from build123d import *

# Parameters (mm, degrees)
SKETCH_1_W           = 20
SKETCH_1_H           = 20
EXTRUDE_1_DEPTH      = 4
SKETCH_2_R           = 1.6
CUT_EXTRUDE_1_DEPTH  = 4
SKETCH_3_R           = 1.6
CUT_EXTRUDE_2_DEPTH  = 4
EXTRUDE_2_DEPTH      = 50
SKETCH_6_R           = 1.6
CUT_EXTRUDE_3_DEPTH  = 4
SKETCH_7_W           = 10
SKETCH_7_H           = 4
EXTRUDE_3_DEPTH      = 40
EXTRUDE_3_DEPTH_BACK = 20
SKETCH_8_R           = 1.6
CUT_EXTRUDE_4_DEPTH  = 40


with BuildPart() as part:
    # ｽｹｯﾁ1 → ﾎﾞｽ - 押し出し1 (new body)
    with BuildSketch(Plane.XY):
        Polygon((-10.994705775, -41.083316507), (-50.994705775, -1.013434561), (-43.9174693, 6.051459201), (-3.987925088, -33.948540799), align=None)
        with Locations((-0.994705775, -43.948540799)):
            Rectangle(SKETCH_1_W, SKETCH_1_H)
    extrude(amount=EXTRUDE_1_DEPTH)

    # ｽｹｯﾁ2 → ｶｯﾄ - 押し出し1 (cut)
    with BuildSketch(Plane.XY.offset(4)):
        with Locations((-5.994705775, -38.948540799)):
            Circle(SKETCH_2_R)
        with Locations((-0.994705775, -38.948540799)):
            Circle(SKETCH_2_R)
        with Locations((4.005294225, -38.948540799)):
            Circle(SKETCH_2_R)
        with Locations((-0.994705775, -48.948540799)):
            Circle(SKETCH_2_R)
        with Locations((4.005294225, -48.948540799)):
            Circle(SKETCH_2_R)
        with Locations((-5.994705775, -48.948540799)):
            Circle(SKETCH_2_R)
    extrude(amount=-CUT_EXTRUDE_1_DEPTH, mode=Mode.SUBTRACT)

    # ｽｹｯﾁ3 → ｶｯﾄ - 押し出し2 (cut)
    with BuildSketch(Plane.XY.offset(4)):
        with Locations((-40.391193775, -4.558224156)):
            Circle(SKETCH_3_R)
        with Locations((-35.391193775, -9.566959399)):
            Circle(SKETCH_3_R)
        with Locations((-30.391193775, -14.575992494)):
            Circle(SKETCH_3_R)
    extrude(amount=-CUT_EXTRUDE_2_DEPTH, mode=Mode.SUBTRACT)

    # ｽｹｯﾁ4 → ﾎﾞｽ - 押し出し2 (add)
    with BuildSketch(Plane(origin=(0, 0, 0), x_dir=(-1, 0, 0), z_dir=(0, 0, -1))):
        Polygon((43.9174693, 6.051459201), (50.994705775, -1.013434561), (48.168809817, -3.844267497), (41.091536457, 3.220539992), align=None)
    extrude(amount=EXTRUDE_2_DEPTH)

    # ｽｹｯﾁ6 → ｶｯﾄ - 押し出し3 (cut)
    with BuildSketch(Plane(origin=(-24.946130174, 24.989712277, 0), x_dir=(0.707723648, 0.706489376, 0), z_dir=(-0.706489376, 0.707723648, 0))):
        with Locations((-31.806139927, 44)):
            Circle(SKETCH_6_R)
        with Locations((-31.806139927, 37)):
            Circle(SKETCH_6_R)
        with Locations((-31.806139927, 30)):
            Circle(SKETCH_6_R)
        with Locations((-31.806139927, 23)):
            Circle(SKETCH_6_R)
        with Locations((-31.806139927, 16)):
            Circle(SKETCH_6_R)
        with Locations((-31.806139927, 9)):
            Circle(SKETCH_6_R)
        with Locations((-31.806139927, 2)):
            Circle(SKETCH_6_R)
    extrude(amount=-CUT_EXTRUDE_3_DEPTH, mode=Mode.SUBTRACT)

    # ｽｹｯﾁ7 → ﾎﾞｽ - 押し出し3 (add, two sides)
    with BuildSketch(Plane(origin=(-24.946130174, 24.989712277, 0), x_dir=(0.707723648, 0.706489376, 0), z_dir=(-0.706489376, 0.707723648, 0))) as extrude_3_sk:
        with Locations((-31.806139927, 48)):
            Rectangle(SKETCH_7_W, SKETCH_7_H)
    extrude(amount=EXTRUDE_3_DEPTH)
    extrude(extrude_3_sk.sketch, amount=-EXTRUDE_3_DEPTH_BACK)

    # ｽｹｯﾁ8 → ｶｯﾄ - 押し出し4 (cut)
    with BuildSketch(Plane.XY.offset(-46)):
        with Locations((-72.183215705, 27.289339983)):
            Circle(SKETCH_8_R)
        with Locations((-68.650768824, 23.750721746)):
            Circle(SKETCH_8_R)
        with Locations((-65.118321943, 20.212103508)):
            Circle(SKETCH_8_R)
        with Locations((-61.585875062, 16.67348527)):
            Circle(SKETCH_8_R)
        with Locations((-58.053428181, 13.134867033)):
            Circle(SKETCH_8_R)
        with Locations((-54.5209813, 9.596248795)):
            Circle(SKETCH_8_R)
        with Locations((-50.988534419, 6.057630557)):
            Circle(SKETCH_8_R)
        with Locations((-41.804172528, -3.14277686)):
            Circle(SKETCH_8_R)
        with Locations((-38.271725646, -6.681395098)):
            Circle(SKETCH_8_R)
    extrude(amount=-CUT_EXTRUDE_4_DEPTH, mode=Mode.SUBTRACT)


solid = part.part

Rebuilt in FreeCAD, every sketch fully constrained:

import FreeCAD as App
import Part
import Sketcher
from FreeCAD import Vector
Q = App.Units.Quantity

doc = App.newDocument("Part")
params = doc.addObject("Spreadsheet::Sheet", "Params")
for row, (alias, value) in enumerate([
    ("sketch1_width", "20 mm"),
    ("sketch1_length", "10 mm"),
    ("pad1_length", "4 mm"),
    ("sketch2_diameter", "3.2 mm"),
    ("pocket1_length", "4 mm"),
    ("sketch3_diameter", "3.2 mm"),
    ("pocket2_length", "4 mm"),
    ("sketch4_length", "10 mm"),
    ("sketch4_length2", "4 mm"),
    ("pad2_length", "50 mm"),
    ("sketch5_diameter", "3.2 mm"),
    ("pocket3_length", "4 mm"),
    ("sketch6_width", "10 mm"),
    ("sketch6_height", "4 mm"),
    ("pad3_length", "40 mm"),
    ("pad3_length2", "20 mm"),
    ("sketch7_diameter", "3.2 mm"),
    ("pocket4_length", "40 mm"),
], start=1):
    params.set(f"A{row}", alias)
    params.set(f"B{row}", "=" + value)
    params.setAlias(f"B{row}", alias)

body = doc.addObject("PartDesign::Body", "Body")

# Sketch on XY plane
sketch1 = body.newObject("Sketcher::SketchObject", "Sketch")
sketch1.AttachmentSupport = (doc.getObject("XY_Plane"), [""])
sketch1.MapMode = "FlatFace"
sketch1.addGeometry(Part.LineSegment(Vector(-4, -34, 0), Vector(-44, 6, 0)), False)
sketch1.addGeometry(Part.LineSegment(Vector(-44, 6, 0), Vector(-51, -1, 0)), False)
sketch1.addGeometry(Part.LineSegment(Vector(-51, -1, 0), Vector(-11, -41, 0)), False)
sketch1.addGeometry(Part.LineSegment(Vector(-11, -41, 0), Vector(-11, -54, 0)), False)
sketch1.addGeometry(Part.LineSegment(Vector(-11, -54, 0), Vector(9, -54, 0)), False)
sketch1.addGeometry(Part.LineSegment(Vector(9, -54, 0), Vector(9, -34, 0)), False)
sketch1.addGeometry(Part.LineSegment(Vector(9, -34, 0), Vector(-4, -34, 0)), False)
sketch1.addConstraint(Sketcher.Constraint("Coincident", 0, 2, 1, 1))
sketch1.addConstraint(Sketcher.Constraint("Coincident", 1, 2, 2, 1))
sketch1.addConstraint(Sketcher.Constraint("Coincident", 2, 2, 3, 1))
sketch1.addConstraint(Sketcher.Constraint("Coincident", 3, 2, 4, 1))
sketch1.addConstraint(Sketcher.Constraint("Coincident", 4, 2, 5, 1))
sketch1.addConstraint(Sketcher.Constraint("Coincident", 5, 2, 6, 1))
sketch1.addConstraint(Sketcher.Constraint("Coincident", 6, 2, 0, 1))
sketch1.addConstraint(Sketcher.Constraint("Vertical", 3))
sketch1.addConstraint(Sketcher.Constraint("Horizontal", 4))
sketch1.addConstraint(Sketcher.Constraint("Vertical", 5))
sketch1.addConstraint(Sketcher.Constraint("Horizontal", 6))
sketch1.addConstraint(Sketcher.Constraint("Perpendicular", 1, 2))
sketch1.addConstraint(Sketcher.Constraint("Equal", 4, 5))
sketch1.addConstraint(Sketcher.Constraint("DistanceX", 4, 1, 4, 2, 20.0))
sketch1.addConstraint(Sketcher.Constraint("Distance", 1, 10.0))
sketch1.addConstraint(Sketcher.Constraint("DistanceX", 1, 2, 2, 2, 40.0))
sketch1.addConstraint(Sketcher.Constraint("DistanceY", 3, 2, 0, 2, 60.0))
sketch1.addConstraint(Sketcher.Constraint("Angle", 1, Q("-135.050006 deg")))
sketch1.addConstraint(Sketcher.Constraint("DistanceX", 6, 2, 6, 1, 12.993219))
sketch1.addConstraint(Sketcher.Constraint("DistanceX", 0, 2, -1, 1, 43.917469))
sketch1.addConstraint(Sketcher.Constraint("DistanceY", -1, 1, 0, 2, 6.051459))
sketch1.setExpression("Constraints[13]", "Params.sketch1_width")
sketch1.setExpression("Constraints[14]", "Params.sketch1_length")
pad1 = body.newObject("PartDesign::Pad", "Pad")
pad1.Profile = sketch1
pad1.setExpression("Length", "Params.pad1_length")

# Sketch on XY plane
sketch2 = body.newObject("Sketcher::SketchObject", "Sketch001")
sketch2.AttachmentSupport = (doc.getObject("XY_Plane"), [""])
sketch2.MapMode = "FlatFace"
sketch2.AttachmentOffset = App.Placement(Vector(0, 0, 4), App.Rotation())
sketch2.addGeometry(Part.Circle(Vector(-6, -38.9, 0), Vector(0, 0, 1), 1.6), False)
sketch2.addGeometry(Part.Circle(Vector(-1, -38.9, 0), Vector(0, 0, 1), 1.6), False)
sketch2.addGeometry(Part.Circle(Vector(4, -38.9, 0), Vector(0, 0, 1), 1.6), False)
sketch2.addGeometry(Part.Circle(Vector(-1, -48.9, 0), Vector(0, 0, 1), 1.6), False)
sketch2.addGeometry(Part.Circle(Vector(4, -48.9, 0), Vector(0, 0, 1), 1.6), False)
sketch2.addGeometry(Part.Circle(Vector(-6, -48.9, 0), Vector(0, 0, 1), 1.6), False)
sketch2.addConstraint(Sketcher.Constraint("Equal", 0, 1))
sketch2.addConstraint(Sketcher.Constraint("Equal", 1, 2))
sketch2.addConstraint(Sketcher.Constraint("Equal", 2, 3))
sketch2.addConstraint(Sketcher.Constraint("Equal", 3, 4))
sketch2.addConstraint(Sketcher.Constraint("Equal", 4, 5))
sketch2.addConstraint(Sketcher.Constraint("Horizontal", 0, 3, 1, 3))
sketch2.addConstraint(Sketcher.Constraint("Horizontal", 1, 3, 2, 3))
sketch2.addConstraint(Sketcher.Constraint("Horizontal", 3, 3, 4, 3))
sketch2.addConstraint(Sketcher.Constraint("Horizontal", 4, 3, 5, 3))
sketch2.addConstraint(Sketcher.Constraint("Vertical", 1, 3, 3, 3))
sketch2.addConstraint(Sketcher.Constraint("Vertical", 2, 3, 4, 3))
sketch2.addConstraint(Sketcher.Constraint("Vertical", 0, 3, 5, 3))
sketch2.addConstraint(Sketcher.Constraint("Diameter", 0, 3.2))
sketch2.addConstraint(Sketcher.Constraint("DistanceX", 0, 3, 1, 3, 5.0))
sketch2.addConstraint(Sketcher.Constraint("DistanceX", 1, 3, 2, 3, 5.0))
sketch2.addConstraint(Sketcher.Constraint("DistanceY", 3, 3, 1, 3, 10.0))
sketch2.addConstraint(Sketcher.Constraint("DistanceY", 0, 3, -1, 1, 38.948541))
sketch2.addConstraint(Sketcher.Constraint("DistanceX", 0, 3, -1, 1, 5.994706))
sketch2.setExpression("Constraints[12]", "Params.sketch2_diameter")
pocket1 = body.newObject("PartDesign::Pocket", "Pocket")
pocket1.Profile = sketch2
pocket1.setExpression("Length", "Params.pocket1_length")

# Sketch on XY plane
sketch3 = body.newObject("Sketcher::SketchObject", "Sketch002")
sketch3.AttachmentSupport = (doc.getObject("XY_Plane"), [""])
sketch3.MapMode = "FlatFace"
sketch3.AttachmentOffset = App.Placement(Vector(0, 0, 4), App.Rotation())
sketch3.addGeometry(Part.Circle(Vector(-40.4, -4.6, 0), Vector(0, 0, 1), 1.6), False)
sketch3.addGeometry(Part.Circle(Vector(-35.4, -9.6, 0), Vector(0, 0, 1), 1.6), False)
sketch3.addGeometry(Part.Circle(Vector(-30.4, -14.6, 0), Vector(0, 0, 1), 1.6), False)
sketch3.addConstraint(Sketcher.Constraint("Equal", 0, 1))
sketch3.addConstraint(Sketcher.Constraint("Equal", 1, 2))
sketch3.addConstraint(Sketcher.Constraint("Diameter", 0, 3.2))
sketch3.addConstraint(Sketcher.Constraint("DistanceX", 0, 3, 1, 3, 5.0))
sketch3.addConstraint(Sketcher.Constraint("DistanceX", 1, 3, 2, 3, 5.0))
sketch3.addConstraint(Sketcher.Constraint("DistanceY", 1, 3, -1, 1, 9.566959))
sketch3.addConstraint(Sketcher.Constraint("DistanceY", 2, 3, 0, 3, 10.017768))
sketch3.addConstraint(Sketcher.Constraint("DistanceX", 0, 3, -1, 1, 40.391194))
sketch3.addConstraint(Sketcher.Constraint("DistanceY", 0, 3, -1, 1, 4.558224))
sketch3.setExpression("Constraints[2]", "Params.sketch3_diameter")
pocket2 = body.newObject("PartDesign::Pocket", "Pocket001")
pocket2.Profile = sketch3
pocket2.setExpression("Length", "Params.pocket2_length")

# Sketch on XY plane
sketch4 = body.newObject("Sketcher::SketchObject", "Sketch003")
sketch4.AttachmentSupport = (doc.getObject("XY_Plane"), [""])
sketch4.MapMode = "FlatFace"
sketch4.addGeometry(Part.LineSegment(Vector(-51, -1, 0), Vector(-43.9, 6.1, 0)), False)
sketch4.addGeometry(Part.LineSegment(Vector(-43.9, 6.1, 0), Vector(-41.1, 3.2, 0)), False)
sketch4.addGeometry(Part.LineSegment(Vector(-41.1, 3.2, 0), Vector(-48.2, -3.8, 0)), False)
sketch4.addGeometry(Part.LineSegment(Vector(-48.2, -3.8, 0), Vector(-51, -1, 0)), False)
sketch4.addConstraint(Sketcher.Constraint("Coincident", 0, 2, 1, 1))
sketch4.addConstraint(Sketcher.Constraint("Coincident", 1, 2, 2, 1))
sketch4.addConstraint(Sketcher.Constraint("Coincident", 2, 2, 3, 1))
sketch4.addConstraint(Sketcher.Constraint("Coincident", 3, 2, 0, 1))
sketch4.addConstraint(Sketcher.Constraint("Perpendicular", 1, 2))
sketch4.addConstraint(Sketcher.Constraint("Perpendicular", 0, 3))
sketch4.addConstraint(Sketcher.Constraint("Distance", 0, 10.0))
sketch4.addConstraint(Sketcher.Constraint("Distance", 1, 4.0))
sketch4.addConstraint(Sketcher.Constraint("Angle", 0, Q("44.949994 deg")))
sketch4.addConstraint(Sketcher.Constraint("DistanceX", 0, 2, -1, 1, 43.917469))
sketch4.addConstraint(Sketcher.Constraint("DistanceY", -1, 1, 0, 2, 6.051459))
sketch4.addConstraint(Sketcher.Constraint("DistanceY", -1, 1, 1, 2, 3.22054))
sketch4.setExpression("Constraints[6]", "Params.sketch4_length")
sketch4.setExpression("Constraints[7]", "Params.sketch4_length2")
pad2 = body.newObject("PartDesign::Pad", "Pad001")
pad2.Profile = sketch4
pad2.setExpression("Length", "Params.pad2_length")
pad2.Reversed = True

# Sketch on an angled plane
sketch5 = body.newObject("Sketcher::SketchObject", "Sketch004")
sketch5.Placement = App.Placement(Vector(-24.94613, 24.989712, 0), App.Rotation(Vector(0.707723648, 0.706489376, 0), Vector(0, 0, -1), Vector(-0.706489376, 0.707723648, 0), "ZXY"))
sketch5.addGeometry(Part.Circle(Vector(-31.8, 44, 0), Vector(0, 0, 1), 1.6), False)
sketch5.addGeometry(Part.Circle(Vector(-31.8, 37, 0), Vector(0, 0, 1), 1.6), False)
sketch5.addGeometry(Part.Circle(Vector(-31.8, 30, 0), Vector(0, 0, 1), 1.6), False)
sketch5.addGeometry(Part.Circle(Vector(-31.8, 23, 0), Vector(0, 0, 1), 1.6), False)
sketch5.addGeometry(Part.Circle(Vector(-31.8, 16, 0), Vector(0, 0, 1), 1.6), False)
sketch5.addGeometry(Part.Circle(Vector(-31.8, 9, 0), Vector(0, 0, 1), 1.6), False)
sketch5.addGeometry(Part.Circle(Vector(-31.8, 2, 0), Vector(0, 0, 1), 1.6), False)
sketch5.addConstraint(Sketcher.Constraint("Equal", 0, 1))
sketch5.addConstraint(Sketcher.Constraint("Equal", 1, 2))
sketch5.addConstraint(Sketcher.Constraint("Equal", 2, 3))
sketch5.addConstraint(Sketcher.Constraint("Equal", 3, 4))
sketch5.addConstraint(Sketcher.Constraint("Equal", 4, 5))
sketch5.addConstraint(Sketcher.Constraint("Equal", 5, 6))
sketch5.addConstraint(Sketcher.Constraint("Vertical", 0, 3, 1, 3))
sketch5.addConstraint(Sketcher.Constraint("Vertical", 1, 3, 2, 3))
sketch5.addConstraint(Sketcher.Constraint("Vertical", 2, 3, 3, 3))
sketch5.addConstraint(Sketcher.Constraint("Vertical", 3, 3, 4, 3))
sketch5.addConstraint(Sketcher.Constraint("Vertical", 4, 3, 5, 3))
sketch5.addConstraint(Sketcher.Constraint("Vertical", 5, 3, 6, 3))
sketch5.addConstraint(Sketcher.Constraint("Diameter", 0, 3.2))
sketch5.addConstraint(Sketcher.Constraint("DistanceY", -1, 1, 0, 3, 44.0))
sketch5.addConstraint(Sketcher.Constraint("DistanceY", -1, 1, 1, 3, 37.0))
sketch5.addConstraint(Sketcher.Constraint("DistanceY", -1, 1, 2, 3, 30.0))
sketch5.addConstraint(Sketcher.Constraint("DistanceY", -1, 1, 3, 3, 23.0))
sketch5.addConstraint(Sketcher.Constraint("DistanceY", -1, 1, 4, 3, 16.0))
sketch5.addConstraint(Sketcher.Constraint("DistanceY", -1, 1, 5, 3, 9.0))
sketch5.addConstraint(Sketcher.Constraint("DistanceY", -1, 1, 6, 3, 2.0))
sketch5.addConstraint(Sketcher.Constraint("DistanceX", 0, 3, -1, 1, 31.80614))
sketch5.setExpression("Constraints[12]", "Params.sketch5_diameter")
pocket3 = body.newObject("PartDesign::Pocket", "Pocket002")
pocket3.Profile = sketch5
pocket3.setExpression("Length", "Params.pocket3_length")

# Sketch on an angled plane
sketch6 = body.newObject("Sketcher::SketchObject", "Sketch005")
sketch6.Placement = App.Placement(Vector(-24.94613, 24.989712, 0), App.Rotation(Vector(0.707723648, 0.706489376, 0), Vector(0, 0, -1), Vector(-0.706489376, 0.707723648, 0), "ZXY"))
sketch6.addGeometry(Part.LineSegment(Vector(-36.8, 50, 0), Vector(-36.8, 46, 0)), False)
sketch6.addGeometry(Part.LineSegment(Vector(-36.8, 46, 0), Vector(-26.8, 46, 0)), False)
sketch6.addGeometry(Part.LineSegment(Vector(-26.8, 46, 0), Vector(-26.8, 50, 0)), False)
sketch6.addGeometry(Part.LineSegment(Vector(-26.8, 50, 0), Vector(-36.8, 50, 0)), False)
sketch6.addConstraint(Sketcher.Constraint("Coincident", 0, 2, 1, 1))
sketch6.addConstraint(Sketcher.Constraint("Coincident", 1, 2, 2, 1))
sketch6.addConstraint(Sketcher.Constraint("Coincident", 2, 2, 3, 1))
sketch6.addConstraint(Sketcher.Constraint("Coincident", 3, 2, 0, 1))
sketch6.addConstraint(Sketcher.Constraint("Vertical", 0))
sketch6.addConstraint(Sketcher.Constraint("Horizontal", 1))
sketch6.addConstraint(Sketcher.Constraint("Vertical", 2))
sketch6.addConstraint(Sketcher.Constraint("Horizontal", 3))
sketch6.addConstraint(Sketcher.Constraint("DistanceX", 1, 1, 1, 2, 10.0))
sketch6.addConstraint(Sketcher.Constraint("DistanceY", 0, 2, 0, 1, 4.0))
sketch6.addConstraint(Sketcher.Constraint("DistanceY", -1, 1, 0, 2, 46.0))
sketch6.addConstraint(Sketcher.Constraint("DistanceX", 0, 2, -1, 1, 36.80614))
sketch6.setExpression("Constraints[8]", "Params.sketch6_width")
sketch6.setExpression("Constraints[9]", "Params.sketch6_height")
pad3 = body.newObject("PartDesign::Pad", "Pad002")
pad3.Profile = sketch6
pad3.Type = "TwoLengths"
pad3.setExpression("Length", "Params.pad3_length")
pad3.setExpression("Length2", "Params.pad3_length2")

# Sketch on XY plane
sketch7 = body.newObject("Sketcher::SketchObject", "Sketch006")
sketch7.AttachmentSupport = (doc.getObject("XY_Plane"), [""])
sketch7.MapMode = "FlatFace"
sketch7.AttachmentOffset = App.Placement(Vector(0, 0, -46), App.Rotation())
sketch7.addGeometry(Part.Circle(Vector(-72.2, 27.3, 0), Vector(0, 0, 1), 1.6), False)
sketch7.addGeometry(Part.Circle(Vector(-68.7, 23.8, 0), Vector(0, 0, 1), 1.6), False)
sketch7.addGeometry(Part.Circle(Vector(-65.1, 20.2, 0), Vector(0, 0, 1), 1.6), False)
sketch7.addGeometry(Part.Circle(Vector(-61.6, 16.7, 0), Vector(0, 0, 1), 1.6), False)
sketch7.addGeometry(Part.Circle(Vector(-58.1, 13.1, 0), Vector(0, 0, 1), 1.6), False)
sketch7.addGeometry(Part.Circle(Vector(-54.5, 9.6, 0), Vector(0, 0, 1), 1.6), False)
sketch7.addGeometry(Part.Circle(Vector(-51, 6.1, 0), Vector(0, 0, 1), 1.6), False)
sketch7.addGeometry(Part.Circle(Vector(-41.8, -3.1, 0), Vector(0, 0, 1), 1.6), False)
sketch7.addGeometry(Part.Circle(Vector(-38.3, -6.7, 0), Vector(0, 0, 1), 1.6), False)
sketch7.addConstraint(Sketcher.Constraint("Equal", 0, 1))
sketch7.addConstraint(Sketcher.Constraint("Equal", 1, 2))
sketch7.addConstraint(Sketcher.Constraint("Equal", 2, 3))
sketch7.addConstraint(Sketcher.Constraint("Equal", 3, 4))
sketch7.addConstraint(Sketcher.Constraint("Equal", 4, 5))
sketch7.addConstraint(Sketcher.Constraint("Equal", 5, 6))
sketch7.addConstraint(Sketcher.Constraint("Equal", 6, 7))
sketch7.addConstraint(Sketcher.Constraint("Equal", 7, 8))
sketch7.addConstraint(Sketcher.Constraint("Diameter", 0, 3.2))
sketch7.addConstraint(Sketcher.Constraint("DistanceY", -1, 1, 0, 3, 27.28934))
sketch7.addConstraint(Sketcher.Constraint("DistanceX", 1, 3, -1, 1, 68.650769))
sketch7.addConstraint(Sketcher.Constraint("DistanceY", -1, 1, 1, 3, 23.750722))
sketch7.addConstraint(Sketcher.Constraint("DistanceX", 2, 3, -1, 1, 65.118322))
sketch7.addConstraint(Sketcher.Constraint("DistanceX", 4, 3, -1, 1, 58.053428))
sketch7.addConstraint(Sketcher.Constraint("DistanceX", 5, 3, -1, 1, 54.520981))
sketch7.addConstraint(Sketcher.Constraint("DistanceY", -1, 1, 5, 3, 9.596249))
sketch7.addConstraint(Sketcher.Constraint("DistanceY", -1, 1, 6, 3, 6.057631))
sketch7.addConstraint(Sketcher.Constraint("DistanceY", 2, 3, 1, 3, 3.538618))
sketch7.addConstraint(Sketcher.Constraint("DistanceY", 3, 3, 2, 3, 3.538618))
sketch7.addConstraint(Sketcher.Constraint("DistanceX", 0, 3, 3, 3, 10.597341))
sketch7.addConstraint(Sketcher.Constraint("DistanceY", 4, 3, 3, 3, 3.538618))
sketch7.addConstraint(Sketcher.Constraint("DistanceX", 3, 3, 6, 3, 10.597341))
sketch7.addConstraint(Sketcher.Constraint("DistanceX", 6, 3, 7, 3, 9.184362))
sketch7.addConstraint(Sketcher.Constraint("DistanceX", 5, 3, 7, 3, 12.716809))
sketch7.addConstraint(Sketcher.Constraint("DistanceY", 7, 3, 2, 3, 23.35488))
sketch7.addConstraint(Sketcher.Constraint("DistanceY", 8, 3, 7, 3, 3.538618))
sketch7.addConstraint(Sketcher.Constraint("DistanceX", 6, 3, 8, 3, 12.716809))
sketch7.setExpression("Constraints[8]", "Params.sketch7_diameter")
pocket4 = body.newObject("PartDesign::Pocket", "Pocket003")
pocket4.Profile = sketch7
pocket4.setExpression("Length", "Params.pocket4_length")

doc.recompute()
